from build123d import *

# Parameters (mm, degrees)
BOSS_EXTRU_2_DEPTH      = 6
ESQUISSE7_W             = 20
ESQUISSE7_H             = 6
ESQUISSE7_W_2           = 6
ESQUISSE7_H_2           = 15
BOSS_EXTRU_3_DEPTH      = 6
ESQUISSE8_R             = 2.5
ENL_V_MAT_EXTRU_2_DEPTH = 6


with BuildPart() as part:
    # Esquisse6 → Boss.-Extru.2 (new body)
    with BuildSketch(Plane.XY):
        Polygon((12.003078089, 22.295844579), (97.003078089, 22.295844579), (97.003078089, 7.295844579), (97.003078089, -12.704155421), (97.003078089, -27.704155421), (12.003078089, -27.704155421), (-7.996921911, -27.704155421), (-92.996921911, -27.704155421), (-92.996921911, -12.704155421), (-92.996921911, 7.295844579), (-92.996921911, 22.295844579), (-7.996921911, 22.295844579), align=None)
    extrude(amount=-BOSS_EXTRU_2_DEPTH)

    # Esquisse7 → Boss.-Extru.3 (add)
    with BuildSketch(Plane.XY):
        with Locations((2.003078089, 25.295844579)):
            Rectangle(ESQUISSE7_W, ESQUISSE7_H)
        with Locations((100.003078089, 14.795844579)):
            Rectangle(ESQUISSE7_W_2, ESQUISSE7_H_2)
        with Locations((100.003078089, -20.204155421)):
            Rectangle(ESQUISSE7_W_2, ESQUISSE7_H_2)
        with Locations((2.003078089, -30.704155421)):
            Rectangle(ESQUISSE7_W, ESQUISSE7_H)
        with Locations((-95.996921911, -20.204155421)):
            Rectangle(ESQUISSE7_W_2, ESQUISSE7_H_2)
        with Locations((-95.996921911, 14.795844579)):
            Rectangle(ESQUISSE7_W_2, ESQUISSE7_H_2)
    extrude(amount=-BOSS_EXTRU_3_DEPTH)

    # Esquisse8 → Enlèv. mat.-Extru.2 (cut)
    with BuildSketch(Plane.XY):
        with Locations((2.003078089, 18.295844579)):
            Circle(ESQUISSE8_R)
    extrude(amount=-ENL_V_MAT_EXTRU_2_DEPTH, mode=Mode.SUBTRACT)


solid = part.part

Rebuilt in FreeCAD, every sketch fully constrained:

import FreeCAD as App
import Part
import Sketcher
from FreeCAD import Vector
Q = App.Units.Quantity

doc = App.newDocument("Part")
body = doc.addObject("PartDesign::Body", "Body")

# Sketch on XY plane
sketch1 = body.newObject("Sketcher::SketchObject", "Sketch")
sketch1.AttachmentSupport = (doc.getObject("XY_Plane"), [""])
sketch1.MapMode = "FlatFace"
sketch1.addGeometry([
    Part.LineSegment(Vector(97, 22, 0), Vector(-93, 22, 0)),
    Part.LineSegment(Vector(-93, 22, 0), Vector(-93, -28, 0)),
    Part.LineSegment(Vector(-93, -28, 0), Vector(97, -28, 0)),
    Part.LineSegment(Vector(97, -28, 0), Vector(97, 22, 0)),
], False)
sketch1.addConstraint([
    Sketcher.Constraint("Coincident", 0, 2, 1, 1),
    Sketcher.Constraint("Coincident", 1, 2, 2, 1),
    Sketcher.Constraint("Coincident", 2, 2, 3, 1),
    Sketcher.Constraint("Coincident", 3, 2, 0, 1),
    Sketcher.Constraint("Horizontal", 0),
    Sketcher.Constraint("Vertical", 1),
    Sketcher.Constraint("Horizontal", 2),
    Sketcher.Constraint("Vertical", 3),
    Sketcher.Constraint("DistanceX", 0, 2, 0, 1, Q("190 mm")),
    Sketcher.Constraint("DistanceY", 1, 2, 1, 1, Q("50 mm")),
    Sketcher.Constraint("DistanceX", 0, 2, -1, 1, Q("92.996922 mm")),
    Sketcher.Constraint("DistanceY", -1, 1, 0, 2, Q("22.295845 mm")),
])
pad1 = body.newObject("PartDesign::Pad", "Pad")
pad1.Profile = sketch1
pad1.Length = 6
pad1.Reversed = True

# Sketch on XY plane
sketch2 = body.newObject("Sketcher::SketchObject", "Sketch001")
sketch2.AttachmentSupport = (doc.getObject("XY_Plane"), [""])
sketch2.MapMode = "FlatFace"
sketch2.addGeometry([
    Part.LineSegment(Vector(-8, 28, 0), Vector(-8, 22, 0)),  # 0
    Part.LineSegment(Vector(-8, 22, 0), Vector(12, 22, 0)),  # 1
    Part.LineSegment(Vector(12, 22, 0), Vector(12, 28, 0)),  # 2
    Part.LineSegment(Vector(12, 28, 0), Vector(-8, 28, 0)),  # 3
    Part.LineSegment(Vector(97, 22, 0), Vector(97, 7, 0)),  # 4
    Part.LineSegment(Vector(97, 7, 0), Vector(103, 7, 0)),  # 5
    Part.LineSegment(Vector(103, 7, 0), Vector(103, 22, 0)),  # 6
    Part.LineSegment(Vector(103, 22, 0), Vector(97, 22, 0)),  # 7
    Part.LineSegment(Vector(97, -13, 0), Vector(97, -28, 0)),  # 8
    Part.LineSegment(Vector(97, -28, 0), Vector(103, -28, 0)),  # 9
    Part.LineSegment(Vector(103, -28, 0), Vector(103, -13, 0)),  # 10
    Part.LineSegment(Vector(103, -13, 0), Vector(97, -13, 0)),  # 11
    Part.LineSegment(Vector(-8, -28, 0), Vector(-8, -34, 0)),  # 12
    Part.LineSegment(Vector(-8, -34, 0), Vector(12, -34, 0)),  # 13
    Part.LineSegment(Vector(12, -34, 0), Vector(12, -28, 0)),  # 14
    Part.LineSegment(Vector(12, -28, 0), Vector(-8, -28, 0)),  # 15
    Part.LineSegment(Vector(-99, -13, 0), Vector(-99, -28, 0)),  # 16
    Part.LineSegment(Vector(-99, -28, 0), Vector(-93, -28, 0)),  # 17
    Part.LineSegment(Vector(-93, -28, 0), Vector(-93, -13, 0)),  # 18
    Part.LineSegment(Vector(-93, -13, 0), Vector(-99, -13, 0)),  # 19
    Part.LineSegment(Vector(-99, 22, 0), Vector(-99, 7, 0)),  # 20
    Part.LineSegment(Vector(-99, 7, 0), Vector(-93, 7, 0)),  # 21
    Part.LineSegment(Vector(-93, 7, 0), Vector(-93, 22, 0)),  # 22
    Part.LineSegment(Vector(-93, 22, 0), Vector(-99, 22, 0)),  # 23
], False)
sketch2.addConstraint([
    Sketcher.Constraint("Coincident", 0, 2, 1, 1),
    Sketcher.Constraint("Coincident", 1, 2, 2, 1),
    Sketcher.Constraint("Coincident", 2, 2, 3, 1),
    Sketcher.Constraint("Coincident", 3, 2, 0, 1),
    Sketcher.Constraint("Coincident", 4, 2, 5, 1),
    Sketcher.Constraint("Coincident", 5, 2, 6, 1),
    Sketcher.Constraint("Coincident", 6, 2, 7, 1),
    Sketcher.Constraint("Coincident", 7, 2, 4, 1),
    Sketcher.Constraint("Coincident", 8, 2, 9, 1),
    Sketcher.Constraint("Coincident", 9, 2, 10, 1),
    Sketcher.Constraint("Coincident", 10, 2, 11, 1),
    Sketcher.Constraint("Coincident", 11, 2, 8, 1),
    Sketcher.Constraint("Coincident", 12, 2, 13, 1),
    Sketcher.Constraint("Coincident", 13, 2, 14, 1),
    Sketcher.Constraint("Coincident", 14, 2, 15, 1),
    Sketcher.Constraint("Coincident", 15, 2, 12, 1),
    Sketcher.Constraint("Coincident", 16, 2, 17, 1),
    Sketcher.Constraint("Coincident", 17, 2, 18, 1),
    Sketcher.Constraint("Coincident", 18, 2, 19, 1),
    Sketcher.Constraint("Coincident", 19, 2, 16, 1),
    Sketcher.Constraint("Coincident", 20, 2, 21, 1),
    Sketcher.Constraint("Coincident", 21, 2, 22, 1),
    Sketcher.Constraint("Coincident", 22, 2, 23, 1),
    Sketcher.Constraint("Coincident", 23, 2, 20, 1),
    Sketcher.Constraint("Vertical", 0),
    Sketcher.Constraint("Horizontal", 1),
    Sketcher.Constraint("Vertical", 2),
    Sketcher.Constraint("Horizontal", 3),
    Sketcher.Constraint("Vertical", 4),
    Sketcher.Constraint("Horizontal", 5),
    Sketcher.Constraint("Vertical", 6),
    Sketcher.Constraint("Horizontal", 7),
    Sketcher.Constraint("Vertical", 8),
    Sketcher.Constraint("Horizontal", 9),
    Sketcher.Constraint("Vertical", 10),
    Sketcher.Constraint("Horizontal", 11),
    Sketcher.Constraint("Vertical", 12),
    Sketcher.Constraint("Horizontal", 13),
    Sketcher.Constraint("Vertical", 14),
    Sketcher.Constraint("Horizontal", 15),
    Sketcher.Constraint("Vertical", 16),
    Sketcher.Constraint("Horizontal", 17),
    Sketcher.Constraint("Vertical", 18),
    Sketcher.Constraint("Horizontal", 19),
    Sketcher.Constraint("Vertical", 20),
    Sketcher.Constraint("Horizontal", 21),
    Sketcher.Constraint("Vertical", 22),
    Sketcher.Constraint("Horizontal", 23),
    Sketcher.Constraint("Horizontal", 1, 2, 6, 2),
    Sketcher.Constraint("Horizontal", 9, 2, 14, 2),
    Sketcher.Constraint("Horizontal", 15, 2, 16, 2),
    Sketcher.Constraint("Horizontal", 11, 2, 18, 2),
    Sketcher.Constraint("Horizontal", 5, 2, 20, 2),
    Sketcher.Constraint("Horizontal", 7, 2, 22, 2),
    Sketcher.Constraint("Vertical", 7, 2, 8, 2),
    Sketcher.Constraint("Vertical", 6, 2, 9, 2),
    Sketcher.Constraint("Vertical", 3, 2, 12, 2),
    Sketcher.Constraint("Vertical", 2, 2, 13, 2),
    Sketcher.Constraint("Vertical", 19, 2, 20, 2),
    Sketcher.Constraint("Vertical", 18, 2, 21, 2),
    Sketcher.Constraint("Equal", 11, 17),
    Sketcher.Constraint("Equal", 23, 0),
    Sketcher.Constraint("Equal", 6, 8),
    Sketcher.Constraint("Equal", 2, 12),
    Sketcher.Constraint("DistanceX", 1, 1, 1, 2, Q("20 mm")),
    Sketcher.Constraint("DistanceX", 5, 1, 5, 2, Q("6 mm")),
    Sketcher.Constraint("DistanceY", 4, 2, 4, 1, Q("15 mm")),
    Sketcher.Constraint("DistanceX", 1, 2, 4, 2, Q("85 mm")),
    Sketcher.Constraint("DistanceY", 8, 2, 4, 2, Q("35 mm")),
    Sketcher.Constraint("DistanceX", 16, 2, 15, 2, Q("91 mm")),
    Sketcher.Constraint("DistanceX", 0, 2, -1, 1, Q("7.996922 mm")),
    Sketcher.Constraint("DistanceY", -1, 1, 0, 2, Q("22.295845 mm")),
])
pad2 = body.newObject("PartDesign::Pad", "Pad001")
pad2.Profile = sketch2
pad2.Length = 6
pad2.Reversed = True

# Sketch on XY plane
sketch3 = body.newObject("Sketcher::SketchObject", "Sketch002")
sketch3.AttachmentSupport = (doc.getObject("XY_Plane"), [""])
sketch3.MapMode = "FlatFace"
sketch3.addGeometry(Part.Circle(Vector(2, 18.3, 0), Vector(0, 0, 1), 2.5), False)
sketch3.addConstraint([
    Sketcher.Constraint("Diameter", 0, Q("5 mm")),
    Sketcher.Constraint("DistanceX", -1, 1, 0, 3, Q("2.003078 mm")),
    Sketcher.Constraint("DistanceY", -1, 1, 0, 3, Q("18.295845 mm")),
])
pocket1 = body.newObject("PartDesign::Pocket", "Pocket")
pocket1.Profile = sketch3
pocket1.Length = 6

doc.recompute()
